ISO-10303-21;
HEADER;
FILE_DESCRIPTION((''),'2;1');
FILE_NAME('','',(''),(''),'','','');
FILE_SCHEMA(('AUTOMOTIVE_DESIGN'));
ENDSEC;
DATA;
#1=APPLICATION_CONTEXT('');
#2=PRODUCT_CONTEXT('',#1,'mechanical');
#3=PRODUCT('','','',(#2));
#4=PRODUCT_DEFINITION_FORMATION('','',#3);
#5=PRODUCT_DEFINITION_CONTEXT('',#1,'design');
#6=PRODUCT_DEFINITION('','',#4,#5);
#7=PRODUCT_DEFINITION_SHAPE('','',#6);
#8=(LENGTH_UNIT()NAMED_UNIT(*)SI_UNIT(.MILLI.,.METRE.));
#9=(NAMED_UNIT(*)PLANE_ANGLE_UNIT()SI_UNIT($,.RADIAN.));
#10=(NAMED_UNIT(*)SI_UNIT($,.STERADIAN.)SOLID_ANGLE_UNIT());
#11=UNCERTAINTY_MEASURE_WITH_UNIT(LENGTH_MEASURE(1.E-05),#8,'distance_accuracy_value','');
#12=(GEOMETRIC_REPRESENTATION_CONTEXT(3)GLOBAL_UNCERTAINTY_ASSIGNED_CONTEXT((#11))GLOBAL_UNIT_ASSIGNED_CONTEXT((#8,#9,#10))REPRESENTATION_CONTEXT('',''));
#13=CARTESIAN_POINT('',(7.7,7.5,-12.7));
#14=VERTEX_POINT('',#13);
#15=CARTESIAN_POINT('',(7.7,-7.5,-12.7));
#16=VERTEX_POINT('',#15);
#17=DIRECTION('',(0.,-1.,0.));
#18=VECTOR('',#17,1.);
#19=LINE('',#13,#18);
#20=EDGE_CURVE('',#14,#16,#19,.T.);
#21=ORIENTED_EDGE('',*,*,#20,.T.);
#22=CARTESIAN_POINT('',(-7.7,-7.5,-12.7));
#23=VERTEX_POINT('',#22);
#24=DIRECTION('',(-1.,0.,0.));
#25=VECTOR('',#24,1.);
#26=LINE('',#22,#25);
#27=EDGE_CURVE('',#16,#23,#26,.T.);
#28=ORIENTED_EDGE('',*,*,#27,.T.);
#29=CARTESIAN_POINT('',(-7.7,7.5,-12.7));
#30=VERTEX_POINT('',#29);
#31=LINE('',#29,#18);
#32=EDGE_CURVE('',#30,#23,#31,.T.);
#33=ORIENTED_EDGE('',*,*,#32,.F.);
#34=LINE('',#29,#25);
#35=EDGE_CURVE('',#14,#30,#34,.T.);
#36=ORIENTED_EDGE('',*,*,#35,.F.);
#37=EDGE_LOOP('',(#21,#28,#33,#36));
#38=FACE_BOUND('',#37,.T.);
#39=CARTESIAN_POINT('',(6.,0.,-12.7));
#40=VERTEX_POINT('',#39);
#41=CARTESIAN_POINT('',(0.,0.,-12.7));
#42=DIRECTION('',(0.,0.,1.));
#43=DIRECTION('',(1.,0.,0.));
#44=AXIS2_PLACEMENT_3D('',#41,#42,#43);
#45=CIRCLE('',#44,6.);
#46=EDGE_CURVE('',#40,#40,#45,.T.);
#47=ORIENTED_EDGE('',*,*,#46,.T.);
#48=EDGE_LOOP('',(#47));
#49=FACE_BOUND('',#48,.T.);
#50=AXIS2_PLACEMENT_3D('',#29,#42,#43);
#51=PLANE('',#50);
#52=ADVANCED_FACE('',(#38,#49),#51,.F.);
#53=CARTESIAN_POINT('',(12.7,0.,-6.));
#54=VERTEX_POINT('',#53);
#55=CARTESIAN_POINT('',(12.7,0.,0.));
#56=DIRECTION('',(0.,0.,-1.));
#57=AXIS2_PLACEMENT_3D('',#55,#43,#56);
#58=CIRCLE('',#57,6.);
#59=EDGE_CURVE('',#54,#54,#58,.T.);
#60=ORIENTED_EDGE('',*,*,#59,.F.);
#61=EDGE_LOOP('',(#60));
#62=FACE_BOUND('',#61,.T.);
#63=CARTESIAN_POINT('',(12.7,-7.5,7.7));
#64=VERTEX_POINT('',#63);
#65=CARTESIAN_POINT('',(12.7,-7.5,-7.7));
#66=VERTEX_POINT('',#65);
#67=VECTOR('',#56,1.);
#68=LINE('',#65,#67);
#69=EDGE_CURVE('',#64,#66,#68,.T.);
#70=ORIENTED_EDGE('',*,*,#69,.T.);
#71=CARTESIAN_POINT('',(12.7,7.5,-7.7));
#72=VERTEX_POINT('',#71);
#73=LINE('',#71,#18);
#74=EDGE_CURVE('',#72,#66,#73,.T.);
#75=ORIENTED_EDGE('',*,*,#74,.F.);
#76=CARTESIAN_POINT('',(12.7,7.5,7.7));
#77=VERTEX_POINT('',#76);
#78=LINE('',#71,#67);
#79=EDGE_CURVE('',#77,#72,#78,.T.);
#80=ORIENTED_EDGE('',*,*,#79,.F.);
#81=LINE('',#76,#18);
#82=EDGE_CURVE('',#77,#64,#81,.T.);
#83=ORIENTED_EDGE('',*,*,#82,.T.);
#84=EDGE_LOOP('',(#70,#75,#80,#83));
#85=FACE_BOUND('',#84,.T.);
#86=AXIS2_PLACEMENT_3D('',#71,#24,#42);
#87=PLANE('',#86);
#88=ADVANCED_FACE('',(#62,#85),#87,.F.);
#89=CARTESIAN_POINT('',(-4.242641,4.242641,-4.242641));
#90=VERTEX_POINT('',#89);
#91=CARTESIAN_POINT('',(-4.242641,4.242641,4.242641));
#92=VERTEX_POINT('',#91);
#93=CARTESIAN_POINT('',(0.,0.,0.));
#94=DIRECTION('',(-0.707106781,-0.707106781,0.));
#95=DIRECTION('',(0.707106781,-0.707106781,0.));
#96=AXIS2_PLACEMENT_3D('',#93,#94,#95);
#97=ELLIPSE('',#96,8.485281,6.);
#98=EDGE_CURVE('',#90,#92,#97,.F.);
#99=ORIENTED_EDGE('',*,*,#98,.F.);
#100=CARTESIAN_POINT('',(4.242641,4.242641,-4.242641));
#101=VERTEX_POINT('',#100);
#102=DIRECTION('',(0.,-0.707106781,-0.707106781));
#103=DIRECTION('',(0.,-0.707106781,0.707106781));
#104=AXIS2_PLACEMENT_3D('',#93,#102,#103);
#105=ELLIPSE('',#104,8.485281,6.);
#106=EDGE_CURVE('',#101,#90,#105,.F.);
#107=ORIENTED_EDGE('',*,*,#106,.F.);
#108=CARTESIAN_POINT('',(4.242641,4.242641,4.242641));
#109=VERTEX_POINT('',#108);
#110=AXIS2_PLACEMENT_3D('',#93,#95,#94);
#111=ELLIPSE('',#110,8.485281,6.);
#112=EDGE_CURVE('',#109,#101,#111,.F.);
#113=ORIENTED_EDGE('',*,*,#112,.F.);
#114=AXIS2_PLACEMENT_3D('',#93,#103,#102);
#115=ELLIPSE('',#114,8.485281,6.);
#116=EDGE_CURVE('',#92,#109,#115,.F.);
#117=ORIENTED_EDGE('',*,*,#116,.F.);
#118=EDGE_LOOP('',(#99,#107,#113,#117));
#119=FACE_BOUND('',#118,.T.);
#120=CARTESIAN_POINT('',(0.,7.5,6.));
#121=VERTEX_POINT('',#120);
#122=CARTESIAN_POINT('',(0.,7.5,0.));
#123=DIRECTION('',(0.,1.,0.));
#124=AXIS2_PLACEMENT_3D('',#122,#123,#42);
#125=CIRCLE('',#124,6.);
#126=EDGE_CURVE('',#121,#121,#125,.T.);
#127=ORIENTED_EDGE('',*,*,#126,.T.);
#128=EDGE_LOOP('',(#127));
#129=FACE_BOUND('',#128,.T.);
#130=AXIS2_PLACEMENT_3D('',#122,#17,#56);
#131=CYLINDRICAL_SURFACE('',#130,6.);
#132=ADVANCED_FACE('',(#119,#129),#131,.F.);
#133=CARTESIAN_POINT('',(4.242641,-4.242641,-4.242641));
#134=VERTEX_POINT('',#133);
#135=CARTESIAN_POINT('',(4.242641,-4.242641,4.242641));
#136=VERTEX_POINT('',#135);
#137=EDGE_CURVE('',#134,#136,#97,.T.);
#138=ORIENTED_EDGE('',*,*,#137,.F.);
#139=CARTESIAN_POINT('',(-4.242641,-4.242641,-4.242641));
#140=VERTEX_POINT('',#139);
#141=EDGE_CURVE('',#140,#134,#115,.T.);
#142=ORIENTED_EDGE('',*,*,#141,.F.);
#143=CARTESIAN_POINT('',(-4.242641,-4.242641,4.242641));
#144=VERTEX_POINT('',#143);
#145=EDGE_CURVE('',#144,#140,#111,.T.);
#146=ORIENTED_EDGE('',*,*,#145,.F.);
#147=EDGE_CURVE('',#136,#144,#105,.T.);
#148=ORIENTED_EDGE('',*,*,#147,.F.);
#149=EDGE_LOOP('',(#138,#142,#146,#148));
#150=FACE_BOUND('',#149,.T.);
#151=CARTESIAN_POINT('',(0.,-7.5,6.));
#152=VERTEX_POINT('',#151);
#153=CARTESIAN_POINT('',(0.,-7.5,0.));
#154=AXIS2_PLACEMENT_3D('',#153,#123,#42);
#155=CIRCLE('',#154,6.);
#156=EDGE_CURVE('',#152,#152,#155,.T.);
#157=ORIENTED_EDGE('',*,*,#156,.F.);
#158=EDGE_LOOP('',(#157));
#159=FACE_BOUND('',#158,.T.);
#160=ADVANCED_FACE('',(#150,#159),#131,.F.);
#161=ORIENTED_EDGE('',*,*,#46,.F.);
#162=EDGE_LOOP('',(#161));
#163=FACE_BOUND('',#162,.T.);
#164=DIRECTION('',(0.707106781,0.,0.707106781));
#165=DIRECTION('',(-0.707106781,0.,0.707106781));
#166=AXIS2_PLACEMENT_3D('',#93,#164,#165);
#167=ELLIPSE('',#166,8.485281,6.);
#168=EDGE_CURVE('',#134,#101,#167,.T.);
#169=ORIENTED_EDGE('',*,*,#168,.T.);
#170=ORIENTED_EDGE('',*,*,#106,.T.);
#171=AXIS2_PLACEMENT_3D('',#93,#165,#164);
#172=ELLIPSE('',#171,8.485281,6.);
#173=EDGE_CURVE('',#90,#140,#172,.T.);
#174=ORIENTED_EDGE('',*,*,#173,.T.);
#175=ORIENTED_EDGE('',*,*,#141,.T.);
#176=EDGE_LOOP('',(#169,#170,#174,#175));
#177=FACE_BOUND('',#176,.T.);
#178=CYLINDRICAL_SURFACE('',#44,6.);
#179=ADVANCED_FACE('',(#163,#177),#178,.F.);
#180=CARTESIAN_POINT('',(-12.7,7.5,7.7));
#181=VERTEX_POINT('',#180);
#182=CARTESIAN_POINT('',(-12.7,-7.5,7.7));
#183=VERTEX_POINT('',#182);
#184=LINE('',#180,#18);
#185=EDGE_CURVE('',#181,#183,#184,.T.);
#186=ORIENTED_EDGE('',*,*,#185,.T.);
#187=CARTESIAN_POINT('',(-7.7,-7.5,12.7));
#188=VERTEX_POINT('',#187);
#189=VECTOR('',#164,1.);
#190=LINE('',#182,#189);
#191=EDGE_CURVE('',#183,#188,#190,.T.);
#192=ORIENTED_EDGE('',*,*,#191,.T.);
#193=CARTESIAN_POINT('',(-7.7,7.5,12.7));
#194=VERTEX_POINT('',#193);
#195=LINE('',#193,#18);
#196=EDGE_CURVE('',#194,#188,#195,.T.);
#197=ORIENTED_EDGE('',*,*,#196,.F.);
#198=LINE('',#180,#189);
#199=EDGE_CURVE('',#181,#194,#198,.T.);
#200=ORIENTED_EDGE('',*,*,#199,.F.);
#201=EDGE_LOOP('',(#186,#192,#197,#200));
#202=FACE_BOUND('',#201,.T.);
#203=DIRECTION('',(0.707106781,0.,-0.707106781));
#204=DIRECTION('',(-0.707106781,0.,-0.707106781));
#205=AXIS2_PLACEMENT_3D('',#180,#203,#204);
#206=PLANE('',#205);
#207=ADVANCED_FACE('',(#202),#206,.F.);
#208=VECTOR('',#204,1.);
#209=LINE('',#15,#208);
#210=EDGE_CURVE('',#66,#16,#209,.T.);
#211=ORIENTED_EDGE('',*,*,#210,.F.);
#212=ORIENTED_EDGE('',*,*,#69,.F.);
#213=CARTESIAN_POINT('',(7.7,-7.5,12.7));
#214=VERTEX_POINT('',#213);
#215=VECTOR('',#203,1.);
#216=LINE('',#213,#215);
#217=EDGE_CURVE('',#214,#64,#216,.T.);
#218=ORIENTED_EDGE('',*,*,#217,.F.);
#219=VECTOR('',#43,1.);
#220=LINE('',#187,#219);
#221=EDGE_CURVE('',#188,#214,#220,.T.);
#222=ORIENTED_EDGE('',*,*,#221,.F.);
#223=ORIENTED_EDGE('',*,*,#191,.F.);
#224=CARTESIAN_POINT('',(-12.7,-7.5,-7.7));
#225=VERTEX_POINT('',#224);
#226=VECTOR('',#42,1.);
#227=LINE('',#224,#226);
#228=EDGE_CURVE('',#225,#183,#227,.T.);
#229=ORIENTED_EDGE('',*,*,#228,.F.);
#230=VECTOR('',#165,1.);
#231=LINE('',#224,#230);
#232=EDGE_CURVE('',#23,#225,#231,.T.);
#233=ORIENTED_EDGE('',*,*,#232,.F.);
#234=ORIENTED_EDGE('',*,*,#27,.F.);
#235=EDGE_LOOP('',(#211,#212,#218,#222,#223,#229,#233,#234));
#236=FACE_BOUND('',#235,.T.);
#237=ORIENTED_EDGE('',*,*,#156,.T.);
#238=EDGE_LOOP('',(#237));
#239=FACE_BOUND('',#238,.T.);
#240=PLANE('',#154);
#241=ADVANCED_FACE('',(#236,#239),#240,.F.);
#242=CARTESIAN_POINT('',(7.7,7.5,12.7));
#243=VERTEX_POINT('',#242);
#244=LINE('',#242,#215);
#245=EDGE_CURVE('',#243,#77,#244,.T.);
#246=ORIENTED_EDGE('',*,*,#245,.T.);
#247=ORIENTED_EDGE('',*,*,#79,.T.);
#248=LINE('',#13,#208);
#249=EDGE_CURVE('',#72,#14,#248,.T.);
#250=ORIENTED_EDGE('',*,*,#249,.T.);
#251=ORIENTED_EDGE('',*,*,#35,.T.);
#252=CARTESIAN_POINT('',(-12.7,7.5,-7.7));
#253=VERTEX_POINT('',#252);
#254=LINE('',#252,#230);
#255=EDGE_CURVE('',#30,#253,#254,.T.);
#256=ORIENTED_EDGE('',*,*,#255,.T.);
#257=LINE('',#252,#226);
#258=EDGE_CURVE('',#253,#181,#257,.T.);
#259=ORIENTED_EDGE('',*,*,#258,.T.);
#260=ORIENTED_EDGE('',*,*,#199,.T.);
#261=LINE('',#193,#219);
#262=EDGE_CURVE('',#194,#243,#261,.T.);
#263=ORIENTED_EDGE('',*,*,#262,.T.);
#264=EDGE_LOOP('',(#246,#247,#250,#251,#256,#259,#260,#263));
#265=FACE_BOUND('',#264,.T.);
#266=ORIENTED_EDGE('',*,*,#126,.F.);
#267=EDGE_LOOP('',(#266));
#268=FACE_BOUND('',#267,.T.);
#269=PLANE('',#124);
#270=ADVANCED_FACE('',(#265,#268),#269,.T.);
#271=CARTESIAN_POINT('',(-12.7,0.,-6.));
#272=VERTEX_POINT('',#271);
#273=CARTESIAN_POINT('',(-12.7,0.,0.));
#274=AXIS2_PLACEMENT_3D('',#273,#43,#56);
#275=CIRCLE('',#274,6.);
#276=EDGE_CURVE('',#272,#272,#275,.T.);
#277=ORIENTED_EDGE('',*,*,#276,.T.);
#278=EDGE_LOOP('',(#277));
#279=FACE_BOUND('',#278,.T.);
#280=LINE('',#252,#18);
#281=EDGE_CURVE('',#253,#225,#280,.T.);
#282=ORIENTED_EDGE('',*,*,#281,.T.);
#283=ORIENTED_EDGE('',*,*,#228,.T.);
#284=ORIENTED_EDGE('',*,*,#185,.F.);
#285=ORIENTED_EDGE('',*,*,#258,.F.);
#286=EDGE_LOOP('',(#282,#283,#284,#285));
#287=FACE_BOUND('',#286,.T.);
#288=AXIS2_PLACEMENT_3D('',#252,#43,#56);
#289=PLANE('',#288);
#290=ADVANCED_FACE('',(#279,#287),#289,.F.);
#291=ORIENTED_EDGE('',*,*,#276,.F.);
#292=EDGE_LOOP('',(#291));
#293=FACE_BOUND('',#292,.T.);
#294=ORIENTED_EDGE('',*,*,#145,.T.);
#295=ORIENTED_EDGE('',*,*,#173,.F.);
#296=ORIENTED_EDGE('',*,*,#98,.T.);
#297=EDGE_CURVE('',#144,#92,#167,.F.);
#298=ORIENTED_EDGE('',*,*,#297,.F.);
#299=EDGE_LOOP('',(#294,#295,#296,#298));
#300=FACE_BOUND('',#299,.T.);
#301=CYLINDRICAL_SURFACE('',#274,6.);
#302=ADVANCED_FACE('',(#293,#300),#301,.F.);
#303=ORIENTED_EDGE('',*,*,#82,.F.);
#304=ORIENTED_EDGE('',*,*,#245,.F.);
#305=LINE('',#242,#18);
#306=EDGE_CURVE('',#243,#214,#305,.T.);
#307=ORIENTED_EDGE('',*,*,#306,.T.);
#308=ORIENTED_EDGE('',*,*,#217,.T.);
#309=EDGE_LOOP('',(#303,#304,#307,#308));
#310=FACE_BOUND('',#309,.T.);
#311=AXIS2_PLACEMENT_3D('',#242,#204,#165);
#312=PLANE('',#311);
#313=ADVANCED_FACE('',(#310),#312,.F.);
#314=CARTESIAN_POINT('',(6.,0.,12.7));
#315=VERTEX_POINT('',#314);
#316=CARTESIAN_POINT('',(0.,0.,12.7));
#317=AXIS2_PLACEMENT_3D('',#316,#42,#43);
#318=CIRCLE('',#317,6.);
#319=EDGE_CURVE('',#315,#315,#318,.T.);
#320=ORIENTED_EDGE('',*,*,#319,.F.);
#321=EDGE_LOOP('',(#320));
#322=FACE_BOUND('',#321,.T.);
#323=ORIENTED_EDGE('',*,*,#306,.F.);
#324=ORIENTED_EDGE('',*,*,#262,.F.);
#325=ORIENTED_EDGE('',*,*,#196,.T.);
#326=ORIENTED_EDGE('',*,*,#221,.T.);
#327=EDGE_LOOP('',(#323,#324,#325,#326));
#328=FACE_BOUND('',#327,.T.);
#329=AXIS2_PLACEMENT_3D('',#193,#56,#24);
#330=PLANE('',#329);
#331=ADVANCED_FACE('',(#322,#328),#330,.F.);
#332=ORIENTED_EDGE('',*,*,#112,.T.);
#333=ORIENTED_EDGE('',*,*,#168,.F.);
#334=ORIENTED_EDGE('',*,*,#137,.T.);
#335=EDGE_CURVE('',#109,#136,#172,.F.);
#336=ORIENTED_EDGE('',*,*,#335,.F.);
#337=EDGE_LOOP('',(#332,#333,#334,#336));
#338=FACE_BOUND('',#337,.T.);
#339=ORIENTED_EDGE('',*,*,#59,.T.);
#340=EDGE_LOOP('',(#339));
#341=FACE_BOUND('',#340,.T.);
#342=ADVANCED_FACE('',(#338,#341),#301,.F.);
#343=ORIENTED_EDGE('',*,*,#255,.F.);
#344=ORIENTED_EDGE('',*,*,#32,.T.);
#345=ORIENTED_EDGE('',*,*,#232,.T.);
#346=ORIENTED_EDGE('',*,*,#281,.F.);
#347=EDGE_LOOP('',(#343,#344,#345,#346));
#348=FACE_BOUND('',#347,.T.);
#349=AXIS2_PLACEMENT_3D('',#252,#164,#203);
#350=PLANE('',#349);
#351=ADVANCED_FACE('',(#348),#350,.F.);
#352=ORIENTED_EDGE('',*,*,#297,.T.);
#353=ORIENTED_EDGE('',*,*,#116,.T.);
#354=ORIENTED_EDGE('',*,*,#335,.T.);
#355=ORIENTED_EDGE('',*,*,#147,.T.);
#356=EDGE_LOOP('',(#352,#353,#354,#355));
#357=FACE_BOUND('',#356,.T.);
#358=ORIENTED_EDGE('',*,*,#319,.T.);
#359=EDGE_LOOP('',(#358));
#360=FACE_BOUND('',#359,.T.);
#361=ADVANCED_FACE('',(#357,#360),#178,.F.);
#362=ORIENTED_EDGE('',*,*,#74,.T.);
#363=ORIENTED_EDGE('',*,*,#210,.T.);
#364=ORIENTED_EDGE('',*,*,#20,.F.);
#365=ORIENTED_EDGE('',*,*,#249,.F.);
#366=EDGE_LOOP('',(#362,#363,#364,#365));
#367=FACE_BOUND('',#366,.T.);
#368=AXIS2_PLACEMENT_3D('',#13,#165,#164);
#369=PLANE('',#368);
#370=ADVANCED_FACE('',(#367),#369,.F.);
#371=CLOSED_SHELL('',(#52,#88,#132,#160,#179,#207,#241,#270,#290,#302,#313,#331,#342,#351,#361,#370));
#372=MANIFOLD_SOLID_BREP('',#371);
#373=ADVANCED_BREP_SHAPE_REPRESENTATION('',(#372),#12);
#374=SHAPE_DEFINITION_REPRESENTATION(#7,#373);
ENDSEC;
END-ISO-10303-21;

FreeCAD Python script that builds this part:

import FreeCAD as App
import Part
import Sketcher
Q = App.Units.Quantity

doc = App.newDocument("Part")
body = doc.addObject("PartDesign::Body", "Body")

# Sketch on XZ plane
sketch1 = doc.addObject("Sketcher::SketchObject", "Sketch")
body.addObject(sketch1)
sketch1.AttachmentSupport = (doc.XZ_Plane, [""])
sketch1.MapMode = "FlatFace"
sketch1.addGeometry([
    Part.LineSegment(App.Vector(-12.7, 7.7, 0), App.Vector(-7.7, 12.7, 0)),  # 0
    Part.LineSegment(App.Vector(-7.7, 12.7, 0), App.Vector(7.7, 12.7, 0)),  # 1
    Part.LineSegment(App.Vector(7.7, 12.7, 0), App.Vector(12.7, 7.7, 0)),  # 2
    Part.LineSegment(App.Vector(12.7, 7.7, 0), App.Vector(12.7, -7.7, 0)),  # 3
    Part.LineSegment(App.Vector(12.7, -7.7, 0), App.Vector(7.7, -12.7, 0)),  # 4
    Part.LineSegment(App.Vector(7.7, -12.7, 0), App.Vector(-7.7, -12.7, 0)),  # 5
    Part.LineSegment(App.Vector(-7.7, -12.7, 0), App.Vector(-12.7, -7.7, 0)),  # 6
    Part.LineSegment(App.Vector(-12.7, -7.7, 0), App.Vector(-12.7, 7.7, 0)),  # 7
    Part.Circle(App.Vector(0, 0, 0), App.Vector(0, 0, 1), 6),  # 8
], False)
sketch1.addConstraint([
    Sketcher.Constraint("Coincident", 0, 2, 1, 1),
    Sketcher.Constraint("Coincident", 1, 2, 2, 1),
    Sketcher.Constraint("Coincident", 2, 2, 3, 1),
    Sketcher.Constraint("Coincident", 3, 2, 4, 1),
    Sketcher.Constraint("Coincident", 4, 2, 5, 1),
    Sketcher.Constraint("Coincident", 5, 2, 6, 1),
    Sketcher.Constraint("Coincident", 6, 2, 7, 1),
    Sketcher.Constraint("Coincident", 7, 2, 0, 1),
    Sketcher.Constraint("Horizontal", 1),
    Sketcher.Constraint("Vertical", 3),
    Sketcher.Constraint("Horizontal", 5),
    Sketcher.Constraint("Vertical", 7),
    Sketcher.Constraint("Coincident", 8, 3, -1, 1),
    Sketcher.Constraint("Symmetric", 0, 2, 4, 2, -1, 1),
    Sketcher.Constraint("Symmetric", 2, 2, 6, 2, -1, 1),
    Sketcher.Constraint("Perpendicular", 0, 2),
    Sketcher.Constraint("Perpendicular", 2, 4),
    Sketcher.Constraint("Perpendicular", 4, 6),
    Sketcher.Constraint("Horizontal", 3, 2, 6, 2),
    Sketcher.Constraint("Vertical", 1, 2, 4, 2),
    Sketcher.Constraint("Equal", 5, 3),
    Sketcher.Constraint("Diameter", 8, Q("12 mm")),
    Sketcher.Constraint("DistanceX", 1, 1, 1, 2, Q("15.4 mm")),
    Sketcher.Constraint("DistanceX", 1, 2, 2, 2, Q("5 mm")),
])
pad1 = doc.addObject("PartDesign::Pad", "Pad")
body.addObject(pad1)
pad1.Profile = sketch1
pad1.Length = 15
pad1.Midplane = True

# Sketch on XY plane
sketch2 = doc.addObject("Sketcher::SketchObject", "Sketch001")
body.addObject(sketch2)
sketch2.AttachmentSupport = (doc.XY_Plane, [""])
sketch2.MapMode = "FlatFace"
sketch2.AttachmentOffset = App.Placement(App.Vector(0, 0, 12.7), App.Rotation())
sketch2.addGeometry(Part.Circle(App.Vector(0, 0, 0), App.Vector(0, 0, 1), 6), False)
sketch2.addConstraint([
    Sketcher.Constraint("Coincident", 0, 3, -1, 1),
    Sketcher.Constraint("Diameter", 0, Q("12 mm")),
])
pocket1 = doc.addObject("PartDesign::Pocket", "Pocket")
body.addObject(pocket1)
pocket1.Profile = sketch2
pocket1.Type = "ThroughAll"

# Sketch on YZ plane
sketch3 = doc.addObject("Sketcher::SketchObject", "Sketch002")
body.addObject(sketch3)
sketch3.AttachmentSupport = (doc.YZ_Plane, [""])
sketch3.MapMode = "FlatFace"
sketch3.AttachmentOffset = App.Placement(App.Vector(0, 0, 12.7), App.Rotation())
sketch3.addGeometry(Part.Circle(App.Vector(0, 0, 0), App.Vector(0, 0, 1), 6), False)
sketch3.addConstraint([
    Sketcher.Constraint("Coincident", 0, 3, -1, 1),
    Sketcher.Constraint("Diameter", 0, Q("12 mm")),
])
pocket2 = doc.addObject("PartDesign::Pocket", "Pocket001")
body.addObject(pocket2)
pocket2.Profile = sketch3
pocket2.Type = "ThroughAll"

doc.recompute()
